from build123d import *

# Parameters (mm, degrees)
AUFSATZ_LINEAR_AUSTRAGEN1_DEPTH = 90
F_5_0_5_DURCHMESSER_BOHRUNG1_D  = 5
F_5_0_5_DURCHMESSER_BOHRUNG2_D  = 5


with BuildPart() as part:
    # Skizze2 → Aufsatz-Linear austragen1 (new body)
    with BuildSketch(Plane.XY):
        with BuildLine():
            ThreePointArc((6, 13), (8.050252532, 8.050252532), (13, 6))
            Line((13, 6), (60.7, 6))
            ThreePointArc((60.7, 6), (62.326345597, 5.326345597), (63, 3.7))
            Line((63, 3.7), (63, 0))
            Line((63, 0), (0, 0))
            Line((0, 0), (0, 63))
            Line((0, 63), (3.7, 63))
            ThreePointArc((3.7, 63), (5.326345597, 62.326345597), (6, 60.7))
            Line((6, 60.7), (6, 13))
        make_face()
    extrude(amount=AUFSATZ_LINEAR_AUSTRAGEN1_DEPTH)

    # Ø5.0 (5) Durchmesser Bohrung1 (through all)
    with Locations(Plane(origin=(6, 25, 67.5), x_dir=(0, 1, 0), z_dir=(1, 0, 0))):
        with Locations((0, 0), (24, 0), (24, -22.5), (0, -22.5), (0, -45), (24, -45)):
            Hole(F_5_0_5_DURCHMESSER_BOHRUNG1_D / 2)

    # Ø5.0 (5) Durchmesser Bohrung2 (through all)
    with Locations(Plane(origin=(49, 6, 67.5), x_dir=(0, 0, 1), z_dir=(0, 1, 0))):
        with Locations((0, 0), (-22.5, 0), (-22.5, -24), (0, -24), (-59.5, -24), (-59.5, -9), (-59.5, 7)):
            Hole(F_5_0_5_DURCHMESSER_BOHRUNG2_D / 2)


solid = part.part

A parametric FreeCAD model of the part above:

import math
import FreeCAD as App
import Part
import Sketcher

V = App.Vector

doc = App.newDocument("Part")
body = doc.addObject("PartDesign::Body", "Body")

# Sketch on XY plane
sketch1 = body.newObject("Sketcher::SketchObject", "Sketch")
sketch1.AttachmentSupport = (doc.getObject("XY_Plane"), [""])
sketch1.MapMode = "FlatFace"
sketch1.addGeometry(Part.ArcOfCircle(Part.Circle(V(13, 13, 0), V(0, 0, 1), 7), math.radians(-180), math.radians(-90)), False)
sketch1.addGeometry(Part.LineSegment(V(6, 13, 0), V(6, 60.7, 0)), False)
sketch1.addGeometry(Part.ArcOfCircle(Part.Circle(V(3.7, 60.7, 0), V(0, 0, 1), 2.3), math.radians(0), math.radians(90)), False)
sketch1.addGeometry(Part.LineSegment(V(3.7, 63, 0), V(0, 63, 0)), False)
sketch1.addGeometry(Part.LineSegment(V(0, 63, 0), V(0, 0, 0)), False)
sketch1.addGeometry(Part.LineSegment(V(0, 0, 0), V(63, 0, 0)), False)
sketch1.addGeometry(Part.LineSegment(V(63, 0, 0), V(63, 3.7, 0)), False)
sketch1.addGeometry(Part.ArcOfCircle(Part.Circle(V(60.7, 3.7, 0), V(0, 0, 1), 2.3), math.radians(0), math.radians(90)), False)
sketch1.addGeometry(Part.LineSegment(V(60.7, 6, 0), V(13, 6, 0)), False)
sketch1.addConstraint(Sketcher.Constraint("Tangent", 0, 1, 1, 1))
sketch1.addConstraint(Sketcher.Constraint("Tangent", 1, 2, 2, 1))
sketch1.addConstraint(Sketcher.Constraint("Tangent", 2, 2, 3, 1))
sketch1.addConstraint(Sketcher.Constraint("Coincident", 3, 2, 4, 1))
sketch1.addConstraint(Sketcher.Constraint("Coincident", 4, 2, 5, 1))
sketch1.addConstraint(Sketcher.Constraint("Coincident", 5, 2, 6, 1))
sketch1.addConstraint(Sketcher.Constraint("Tangent", 6, 2, 7, 1))
sketch1.addConstraint(Sketcher.Constraint("Tangent", 7, 2, 8, 1))
sketch1.addConstraint(Sketcher.Constraint("Tangent", 8, 2, 0, 2))
sketch1.addConstraint(Sketcher.Constraint("Vertical", 1))
sketch1.addConstraint(Sketcher.Constraint("Horizontal", 3))
sketch1.addConstraint(Sketcher.Constraint("Vertical", 4))
sketch1.addConstraint(Sketcher.Constraint("Horizontal", 5))
sketch1.addConstraint(Sketcher.Constraint("Vertical", 6))
sketch1.addConstraint(Sketcher.Constraint("Horizontal", 8))
sketch1.addConstraint(Sketcher.Constraint("Coincident", 4, 2, -1, 1))
sketch1.addConstraint(Sketcher.Constraint("Equal", 2, 7))
sketch1.addConstraint(Sketcher.Constraint("Equal", 8, 1))
sketch1.addConstraint(Sketcher.Constraint("Equal", 5, 4))
sketch1.addConstraint(Sketcher.Constraint("Radius", 0, 7.0))
sketch1.addConstraint(Sketcher.Constraint("Radius", 2, 2.3))
sketch1.addConstraint(Sketcher.Constraint("DistanceX", 5, 1, 5, 2, 63.0))
sketch1.addConstraint(Sketcher.Constraint("DistanceX", 3, 2, 3, 1, 3.7))
pad1 = body.newObject("PartDesign::Pad", "Pad")
pad1.Profile = sketch1
pad1.Length = 90

# Sketch on YZ plane
sketch2 = body.newObject("Sketcher::SketchObject", "Sketch001")
sketch2.AttachmentSupport = (doc.getObject("YZ_Plane"), [""])
sketch2.MapMode = "FlatFace"
sketch2.AttachmentOffset = App.Placement(V(0, 0, 6), App.Rotation())
sketch2.addGeometry(Part.Circle(V(25, 67.5, 0), V(0, 0, 1), 2.5), False)
sketch2.addGeometry(Part.Circle(V(49, 67.5, 0), V(0, 0, 1), 2.5), False)
sketch2.addGeometry(Part.Circle(V(49, 45, 0), V(0, 0, 1), 2.5), False)
sketch2.addGeometry(Part.Circle(V(25, 45, 0), V(0, 0, 1), 2.5), False)
sketch2.addGeometry(Part.Circle(V(25, 22.5, 0), V(0, 0, 1), 2.5), False)
sketch2.addGeometry(Part.Circle(V(49, 22.5, 0), V(0, 0, 1), 2.5), False)
sketch2.addConstraint(Sketcher.Constraint("Equal", 0, 1))
sketch2.addConstraint(Sketcher.Constraint("Equal", 1, 2))
sketch2.addConstraint(Sketcher.Constraint("Equal", 2, 3))
sketch2.addConstraint(Sketcher.Constraint("Equal", 3, 4))
sketch2.addConstraint(Sketcher.Constraint("Equal", 4, 5))
sketch2.addConstraint(Sketcher.Constraint("Horizontal", 0, 3, 1, 3))
sketch2.addConstraint(Sketcher.Constraint("Horizontal", 2, 3, 3, 3))
sketch2.addConstraint(Sketcher.Constraint("Horizontal", 4, 3, 5, 3))
sketch2.addConstraint(Sketcher.Constraint("Vertical", 1, 3, 2, 3))
sketch2.addConstraint(Sketcher.Constraint("Vertical", 0, 3, 3, 3))
sketch2.addConstraint(Sketcher.Constraint("Vertical", 3, 3, 4, 3))
sketch2.addConstraint(Sketcher.Constraint("Vertical", 2, 3, 5, 3))
sketch2.addConstraint(Sketcher.Constraint("Diameter", 0, 5.0))
sketch2.addConstraint(Sketcher.Constraint("DistanceX", -1, 1, 0, 3, 25.0))
sketch2.addConstraint(Sketcher.Constraint("DistanceX", -1, 1, 1, 3, 49.0))
sketch2.addConstraint(Sketcher.Constraint("DistanceY", -1, 1, 2, 3, 45.0))
sketch2.addConstraint(Sketcher.Constraint("DistanceY", 4, 3, 0, 3, 45.0))
sketch2.addConstraint(Sketcher.Constraint("DistanceY", -1, 1, 0, 3, 67.5))
doc.recompute()
hole = body.newObject("PartDesign::Hole", "Hole")
hole.Profile = sketch2
hole.ThreadType = "None"
hole.Diameter = 5
hole.DepthType = "ThroughAll"

# Sketch on XZ plane
sketch3 = body.newObject("Sketcher::SketchObject", "Sketch002")
sketch3.AttachmentSupport = (doc.getObject("XZ_Plane"), [""])
sketch3.MapMode = "FlatFace"
sketch3.AttachmentOffset = App.Placement(V(0, 0, -6), App.Rotation())
sketch3.addGeometry(Part.Circle(V(49, 67.5, 0), V(0, 0, 1), 2.5), False)
sketch3.addGeometry(Part.Circle(V(49, 45, 0), V(0, 0, 1), 2.5), False)
sketch3.addGeometry(Part.Circle(V(25, 45, 0), V(0, 0, 1), 2.5), False)
sketch3.addGeometry(Part.Circle(V(25, 67.5, 0), V(0, 0, 1), 2.5), False)
sketch3.addGeometry(Part.Circle(V(25, 8, 0), V(0, 0, 1), 2.5), False)
sketch3.addGeometry(Part.Circle(V(40, 8, 0), V(0, 0, 1), 2.5), False)
sketch3.addGeometry(Part.Circle(V(56, 8, 0), V(0, 0, 1), 2.5), False)
sketch3.addConstraint(Sketcher.Constraint("Equal", 0, 1))
sketch3.addConstraint(Sketcher.Constraint("Equal", 1, 2))
sketch3.addConstraint(Sketcher.Constraint("Equal", 2, 3))
sketch3.addConstraint(Sketcher.Constraint("Equal", 3, 4))
sketch3.addConstraint(Sketcher.Constraint("Equal", 4, 5))
sketch3.addConstraint(Sketcher.Constraint("Equal", 5, 6))
sketch3.addConstraint(Sketcher.Constraint("Horizontal", 1, 3, 2, 3))
sketch3.addConstraint(Sketcher.Constraint("Horizontal", 0, 3, 3, 3))
sketch3.addConstraint(Sketcher.Constraint("Horizontal", 4, 3, 5, 3))
sketch3.addConstraint(Sketcher.Constraint("Horizontal", 5, 3, 6, 3))
sketch3.addConstraint(Sketcher.Constraint("Vertical", 0, 3, 1, 3))
sketch3.addConstraint(Sketcher.Constraint("Vertical", 2, 3, 3, 3))
sketch3.addConstraint(Sketcher.Constraint("Vertical", 3, 3, 4, 3))
sketch3.addConstraint(Sketcher.Constraint("Diameter", 0, 5.0))
sketch3.addConstraint(Sketcher.Constraint("DistanceX", -1, 1, 0, 3, 49.0))
sketch3.addConstraint(Sketcher.Constraint("DistanceY", -1, 1, 1, 3, 45.0))
sketch3.addConstraint(Sketcher.Constraint("DistanceX", -1, 1, 2, 3, 25.0))
sketch3.addConstraint(Sketcher.Constraint("DistanceY", -1, 1, 4, 3, 8.0))
sketch3.addConstraint(Sketcher.Constraint("DistanceX", -1, 1, 5, 3, 40.0))
sketch3.addConstraint(Sketcher.Constraint("DistanceX", -1, 1, 6, 3, 56.0))
sketch3.addConstraint(Sketcher.Constraint("DistanceY", -1, 1, 0, 3, 67.5))
doc.recompute()
hole2 = body.newObject("PartDesign::Hole", "Hole001")
hole2.Profile = sketch3
hole2.ThreadType = "None"
hole2.Diameter = 5
hole2.DepthType = "ThroughAll"
hole2.Reversed = True

doc.recompute()
